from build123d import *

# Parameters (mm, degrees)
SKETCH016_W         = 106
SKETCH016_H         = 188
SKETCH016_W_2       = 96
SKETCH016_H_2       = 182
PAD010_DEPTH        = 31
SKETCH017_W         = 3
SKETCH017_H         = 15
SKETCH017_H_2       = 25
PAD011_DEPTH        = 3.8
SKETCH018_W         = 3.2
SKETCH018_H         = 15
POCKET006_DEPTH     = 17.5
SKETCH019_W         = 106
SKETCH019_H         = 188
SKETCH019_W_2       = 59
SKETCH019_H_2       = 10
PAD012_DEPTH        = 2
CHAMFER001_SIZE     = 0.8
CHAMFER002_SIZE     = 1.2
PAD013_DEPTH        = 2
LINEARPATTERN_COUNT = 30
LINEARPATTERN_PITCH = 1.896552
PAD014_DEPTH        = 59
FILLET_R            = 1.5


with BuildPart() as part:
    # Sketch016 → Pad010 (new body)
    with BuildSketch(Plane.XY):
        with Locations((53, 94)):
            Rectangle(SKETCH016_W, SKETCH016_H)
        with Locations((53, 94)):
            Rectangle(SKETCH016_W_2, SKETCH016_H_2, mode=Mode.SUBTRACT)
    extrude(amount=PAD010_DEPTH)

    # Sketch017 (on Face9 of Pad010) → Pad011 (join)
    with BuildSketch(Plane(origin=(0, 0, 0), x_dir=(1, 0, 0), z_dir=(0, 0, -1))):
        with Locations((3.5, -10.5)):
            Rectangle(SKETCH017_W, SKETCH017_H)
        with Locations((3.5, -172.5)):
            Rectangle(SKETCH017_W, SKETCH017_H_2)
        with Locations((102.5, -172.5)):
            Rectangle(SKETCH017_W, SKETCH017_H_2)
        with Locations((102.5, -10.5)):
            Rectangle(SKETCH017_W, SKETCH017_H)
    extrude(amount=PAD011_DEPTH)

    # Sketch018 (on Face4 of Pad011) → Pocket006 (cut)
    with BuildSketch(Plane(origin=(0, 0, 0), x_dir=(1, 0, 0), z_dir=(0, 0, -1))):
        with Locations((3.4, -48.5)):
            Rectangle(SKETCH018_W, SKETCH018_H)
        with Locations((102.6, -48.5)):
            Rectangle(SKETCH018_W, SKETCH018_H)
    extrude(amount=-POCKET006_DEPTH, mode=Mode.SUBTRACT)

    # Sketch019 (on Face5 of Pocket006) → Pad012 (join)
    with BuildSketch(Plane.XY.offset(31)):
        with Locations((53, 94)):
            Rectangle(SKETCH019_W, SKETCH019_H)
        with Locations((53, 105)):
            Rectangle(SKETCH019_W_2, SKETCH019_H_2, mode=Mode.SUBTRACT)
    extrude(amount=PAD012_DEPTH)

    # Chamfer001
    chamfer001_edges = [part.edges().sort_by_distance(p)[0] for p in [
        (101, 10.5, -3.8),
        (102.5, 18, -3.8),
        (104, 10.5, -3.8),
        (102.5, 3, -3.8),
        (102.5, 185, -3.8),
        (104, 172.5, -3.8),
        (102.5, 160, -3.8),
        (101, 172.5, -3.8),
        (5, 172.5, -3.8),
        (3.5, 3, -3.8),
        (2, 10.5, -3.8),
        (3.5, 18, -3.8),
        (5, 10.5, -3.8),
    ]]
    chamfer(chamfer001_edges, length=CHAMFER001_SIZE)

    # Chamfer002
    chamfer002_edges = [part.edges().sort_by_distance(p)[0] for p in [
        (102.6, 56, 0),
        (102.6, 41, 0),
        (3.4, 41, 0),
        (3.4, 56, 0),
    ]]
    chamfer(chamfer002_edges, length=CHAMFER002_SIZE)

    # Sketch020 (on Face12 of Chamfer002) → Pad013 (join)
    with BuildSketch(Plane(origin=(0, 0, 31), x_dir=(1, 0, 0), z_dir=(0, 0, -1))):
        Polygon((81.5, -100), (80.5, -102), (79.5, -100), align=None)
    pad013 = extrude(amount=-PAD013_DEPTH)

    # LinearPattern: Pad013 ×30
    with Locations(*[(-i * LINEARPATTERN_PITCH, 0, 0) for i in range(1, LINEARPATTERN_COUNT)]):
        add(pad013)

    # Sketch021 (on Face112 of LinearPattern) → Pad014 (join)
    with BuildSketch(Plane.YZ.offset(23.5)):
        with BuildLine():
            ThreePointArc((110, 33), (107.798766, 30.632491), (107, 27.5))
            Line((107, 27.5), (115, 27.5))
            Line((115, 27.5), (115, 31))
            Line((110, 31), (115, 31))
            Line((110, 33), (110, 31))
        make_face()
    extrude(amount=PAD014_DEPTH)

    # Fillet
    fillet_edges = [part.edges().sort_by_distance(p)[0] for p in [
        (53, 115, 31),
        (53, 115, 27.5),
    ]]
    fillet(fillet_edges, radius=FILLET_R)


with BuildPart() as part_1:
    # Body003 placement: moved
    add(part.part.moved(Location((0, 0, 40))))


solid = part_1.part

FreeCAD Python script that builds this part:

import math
import FreeCAD as App
import Part
import Sketcher


def edges_at(feature, points):
    """Names of the edges that pass closest to the given points."""
    edges = feature.Shape.Edges
    near = lambda p: min(range(len(edges)), key=lambda i: edges[i].distToShape(Part.Vertex(*p))[0])
    return sorted({f"Edge{near(p) + 1}" for p in points})

doc = App.newDocument("Part")
body = doc.addObject("PartDesign::Body", "Body")

sketch1 = doc.addObject("Sketcher::SketchObject", "Sketch")
body.addObject(sketch1)
sketch1.AttachmentSupport = (doc.XY_Plane, [""])
sketch1.MapMode = "FlatFace"
sketch1.addGeometry(Part.LineSegment(App.Vector(0, 188, 0), App.Vector(0, 0, 0)), False)
sketch1.addGeometry(Part.LineSegment(App.Vector(0, 0, 0), App.Vector(106, 0, 0)), False)
sketch1.addGeometry(Part.LineSegment(App.Vector(106, 0, 0), App.Vector(106, 188, 0)), False)
sketch1.addGeometry(Part.LineSegment(App.Vector(106, 188, 0), App.Vector(0, 188, 0)), False)
sketch1.addGeometry(Part.LineSegment(App.Vector(101, 3, 0), App.Vector(5, 3, 0)), False)
sketch1.addGeometry(Part.LineSegment(App.Vector(5, 3, 0), App.Vector(5, 185, 0)), False)
sketch1.addGeometry(Part.LineSegment(App.Vector(5, 185, 0), App.Vector(101, 185, 0)), False)
sketch1.addGeometry(Part.LineSegment(App.Vector(101, 185, 0), App.Vector(101, 3, 0)), False)
sketch1.addConstraint(Sketcher.Constraint("Coincident", 0, 2, 1, 1))
sketch1.addConstraint(Sketcher.Constraint("Coincident", 1, 2, 2, 1))
sketch1.addConstraint(Sketcher.Constraint("Coincident", 2, 2, 3, 1))
sketch1.addConstraint(Sketcher.Constraint("Coincident", 3, 2, 0, 1))
sketch1.addConstraint(Sketcher.Constraint("Coincident", 4, 2, 5, 1))
sketch1.addConstraint(Sketcher.Constraint("Coincident", 5, 2, 6, 1))
sketch1.addConstraint(Sketcher.Constraint("Coincident", 6, 2, 7, 1))
sketch1.addConstraint(Sketcher.Constraint("Coincident", 7, 2, 4, 1))
sketch1.addConstraint(Sketcher.Constraint("Vertical", 0))
sketch1.addConstraint(Sketcher.Constraint("Horizontal", 1))
sketch1.addConstraint(Sketcher.Constraint("Vertical", 2))
sketch1.addConstraint(Sketcher.Constraint("Horizontal", 3))
sketch1.addConstraint(Sketcher.Constraint("Horizontal", 4))
sketch1.addConstraint(Sketcher.Constraint("Vertical", 5))
sketch1.addConstraint(Sketcher.Constraint("Horizontal", 6))
sketch1.addConstraint(Sketcher.Constraint("Vertical", 7))
sketch1.addConstraint(Sketcher.Constraint("Coincident", 0, 2, -1, 1))
sketch1.addConstraint(Sketcher.Constraint("DistanceX", 1, 1, 1, 2, 106.0))
sketch1.addConstraint(Sketcher.Constraint("DistanceX", 4, 2, 4, 1, 96.0))
sketch1.addConstraint(Sketcher.Constraint("DistanceY", 0, 2, 0, 1, 188.0))
sketch1.addConstraint(Sketcher.Constraint("DistanceY", 5, 1, 5, 2, 182.0))
sketch1.addConstraint(Sketcher.Constraint("DistanceX", -1, 1, 4, 2, 5.0))
sketch1.addConstraint(Sketcher.Constraint("DistanceY", -1, 1, 4, 2, 3.0))
pad1 = doc.addObject("PartDesign::Pad", "Pad")
body.addObject(pad1)
pad1.Profile = sketch1
pad1.Length = 31

sketch2 = doc.addObject("Sketcher::SketchObject", "Sketch001")
body.addObject(sketch2)
sketch2.AttachmentSupport = (doc.XY_Plane, [""])
sketch2.MapMode = "FlatFace"
sketch2.addGeometry(Part.LineSegment(App.Vector(2, 3, 0), App.Vector(2, 18, 0)), False)
sketch2.addGeometry(Part.LineSegment(App.Vector(2, 18, 0), App.Vector(5, 18, 0)), False)
sketch2.addGeometry(Part.LineSegment(App.Vector(5, 18, 0), App.Vector(5, 3, 0)), False)
sketch2.addGeometry(Part.LineSegment(App.Vector(5, 3, 0), App.Vector(2, 3, 0)), False)
sketch2.addGeometry(Part.LineSegment(App.Vector(2, 160, 0), App.Vector(2, 185, 0)), False)
sketch2.addGeometry(Part.LineSegment(App.Vector(2, 185, 0), App.Vector(5, 185, 0)), False)
sketch2.addGeometry(Part.LineSegment(App.Vector(5, 185, 0), App.Vector(5, 160, 0)), False)
sketch2.addGeometry(Part.LineSegment(App.Vector(5, 160, 0), App.Vector(2, 160, 0)), False)
sketch2.addGeometry(Part.LineSegment(App.Vector(101, 160, 0), App.Vector(101, 185, 0)), False)
sketch2.addGeometry(Part.LineSegment(App.Vector(101, 185, 0), App.Vector(104, 185, 0)), False)
sketch2.addGeometry(Part.LineSegment(App.Vector(104, 185, 0), App.Vector(104, 160, 0)), False)
sketch2.addGeometry(Part.LineSegment(App.Vector(104, 160, 0), App.Vector(101, 160, 0)), False)
sketch2.addGeometry(Part.LineSegment(App.Vector(101, 3, 0), App.Vector(101, 18, 0)), False)
sketch2.addGeometry(Part.LineSegment(App.Vector(101, 18, 0), App.Vector(104, 18, 0)), False)
sketch2.addGeometry(Part.LineSegment(App.Vector(104, 18, 0), App.Vector(104, 3, 0)), False)
sketch2.addGeometry(Part.LineSegment(App.Vector(104, 3, 0), App.Vector(101, 3, 0)), False)
sketch2.addConstraint(Sketcher.Constraint("Coincident", 0, 2, 1, 1))
sketch2.addConstraint(Sketcher.Constraint("Coincident", 1, 2, 2, 1))
sketch2.addConstraint(Sketcher.Constraint("Coincident", 2, 2, 3, 1))
sketch2.addConstraint(Sketcher.Constraint("Coincident", 3, 2, 0, 1))
sketch2.addConstraint(Sketcher.Constraint("Coincident", 4, 2, 5, 1))
sketch2.addConstraint(Sketcher.Constraint("Coincident", 5, 2, 6, 1))
sketch2.addConstraint(Sketcher.Constraint("Coincident", 6, 2, 7, 1))
sketch2.addConstraint(Sketcher.Constraint("Coincident", 7, 2, 4, 1))
sketch2.addConstraint(Sketcher.Constraint("Coincident", 8, 2, 9, 1))
sketch2.addConstraint(Sketcher.Constraint("Coincident", 9, 2, 10, 1))
sketch2.addConstraint(Sketcher.Constraint("Coincident", 10, 2, 11, 1))
sketch2.addConstraint(Sketcher.Constraint("Coincident", 11, 2, 8, 1))
sketch2.addConstraint(Sketcher.Constraint("Coincident", 12, 2, 13, 1))
sketch2.addConstraint(Sketcher.Constraint("Coincident", 13, 2, 14, 1))
sketch2.addConstraint(Sketcher.Constraint("Coincident", 14, 2, 15, 1))
sketch2.addConstraint(Sketcher.Constraint("Coincident", 15, 2, 12, 1))
sketch2.addConstraint(Sketcher.Constraint("Vertical", 0))
sketch2.addConstraint(Sketcher.Constraint("Horizontal", 1))
sketch2.addConstraint(Sketcher.Constraint("Vertical", 2))
sketch2.addConstraint(Sketcher.Constraint("Horizontal", 3))
sketch2.addConstraint(Sketcher.Constraint("Vertical", 4))
sketch2.addConstraint(Sketcher.Constraint("Horizontal", 5))
sketch2.addConstraint(Sketcher.Constraint("Vertical", 6))
sketch2.addConstraint(Sketcher.Constraint("Horizontal", 7))
sketch2.addConstraint(Sketcher.Constraint("Vertical", 8))
sketch2.addConstraint(Sketcher.Constraint("Horizontal", 9))
sketch2.addConstraint(Sketcher.Constraint("Vertical", 10))
sketch2.addConstraint(Sketcher.Constraint("Horizontal", 11))
sketch2.addConstraint(Sketcher.Constraint("Vertical", 12))
sketch2.addConstraint(Sketcher.Constraint("Horizontal", 13))
sketch2.addConstraint(Sketcher.Constraint("Vertical", 14))
sketch2.addConstraint(Sketcher.Constraint("Horizontal", 15))
sketch2.addConstraint(Sketcher.Constraint("Horizontal", 5, 2, 8, 2))
sketch2.addConstraint(Sketcher.Constraint("Horizontal", 7, 2, 10, 2))
sketch2.addConstraint(Sketcher.Constraint("Horizontal", 1, 2, 12, 2))
sketch2.addConstraint(Sketcher.Constraint("Horizontal", 3, 2, 14, 2))
sketch2.addConstraint(Sketcher.Constraint("Vertical", 3, 2, 4, 2))
sketch2.addConstraint(Sketcher.Constraint("Vertical", 2, 2, 5, 2))
sketch2.addConstraint(Sketcher.Constraint("Vertical", 11, 2, 12, 2))
sketch2.addConstraint(Sketcher.Constraint("Vertical", 10, 2, 13, 2))
sketch2.addConstraint(Sketcher.Constraint("Equal", 7, 9))
sketch2.addConstraint(Sketcher.Constraint("DistanceX", 1, 1, 1, 2, 3.0))
sketch2.addConstraint(Sketcher.Constraint("DistanceY", 0, 1, 0, 2, 15.0))
sketch2.addConstraint(Sketcher.Constraint("DistanceY", 4, 1, 4, 2, 25.0))
sketch2.addConstraint(Sketcher.Constraint("DistanceX", -1, 1, 0, 2, 2.0))
sketch2.addConstraint(Sketcher.Constraint("DistanceY", -1, 1, 0, 2, 18.0))
sketch2.addConstraint(Sketcher.Constraint("DistanceY", -1, 1, 4, 2, 185.0))
sketch2.addConstraint(Sketcher.Constraint("DistanceX", -1, 1, 8, 2, 101.0))
pad2 = doc.addObject("PartDesign::Pad", "Pad001")
body.addObject(pad2)
pad2.Profile = sketch2
pad2.Length = 3.8
pad2.Reversed = True

sketch3 = doc.addObject("Sketcher::SketchObject", "Sketch002")
body.addObject(sketch3)
sketch3.AttachmentSupport = (doc.XY_Plane, [""])
sketch3.MapMode = "FlatFace"
sketch3.addGeometry(Part.LineSegment(App.Vector(1.8, 41, 0), App.Vector(1.8, 56, 0)), False)
sketch3.addGeometry(Part.LineSegment(App.Vector(1.8, 56, 0), App.Vector(5, 56, 0)), False)
sketch3.addGeometry(Part.LineSegment(App.Vector(5, 56, 0), App.Vector(5, 41, 0)), False)
sketch3.addGeometry(Part.LineSegment(App.Vector(5, 41, 0), App.Vector(1.8, 41, 0)), False)
sketch3.addGeometry(Part.LineSegment(App.Vector(101, 41, 0), App.Vector(101, 56, 0)), False)
sketch3.addGeometry(Part.LineSegment(App.Vector(101, 56, 0), App.Vector(104.2, 56, 0)), False)
sketch3.addGeometry(Part.LineSegment(App.Vector(104.2, 56, 0), App.Vector(104.2, 41, 0)), False)
sketch3.addGeometry(Part.LineSegment(App.Vector(104.2, 41, 0), App.Vector(101, 41, 0)), False)
sketch3.addConstraint(Sketcher.Constraint("Coincident", 0, 2, 1, 1))
sketch3.addConstraint(Sketcher.Constraint("Coincident", 1, 2, 2, 1))
sketch3.addConstraint(Sketcher.Constraint("Coincident", 2, 2, 3, 1))
sketch3.addConstraint(Sketcher.Constraint("Coincident", 3, 2, 0, 1))
sketch3.addConstraint(Sketcher.Constraint("Coincident", 4, 2, 5, 1))
sketch3.addConstraint(Sketcher.Constraint("Coincident", 5, 2, 6, 1))
sketch3.addConstraint(Sketcher.Constraint("Coincident", 6, 2, 7, 1))
sketch3.addConstraint(Sketcher.Constraint("Coincident", 7, 2, 4, 1))
sketch3.addConstraint(Sketcher.Constraint("Vertical", 0))
sketch3.addConstraint(Sketcher.Constraint("Horizontal", 1))
sketch3.addConstraint(Sketcher.Constraint("Vertical", 2))
sketch3.addConstraint(Sketcher.Constraint("Horizontal", 3))
sketch3.addConstraint(Sketcher.Constraint("Vertical", 4))
sketch3.addConstraint(Sketcher.Constraint("Horizontal", 5))
sketch3.addConstraint(Sketcher.Constraint("Vertical", 6))
sketch3.addConstraint(Sketcher.Constraint("Horizontal", 7))
sketch3.addConstraint(Sketcher.Constraint("Horizontal", 1, 2, 4, 2))
sketch3.addConstraint(Sketcher.Constraint("Horizontal", 3, 2, 6, 2))
sketch3.addConstraint(Sketcher.Constraint("Equal", 3, 5))
sketch3.addConstraint(Sketcher.Constraint("DistanceY", 0, 1, 0, 2, 15.0))
sketch3.addConstraint(Sketcher.Constraint("DistanceX", 1, 1, 1, 2, 3.2))
sketch3.addConstraint(Sketcher.Constraint("DistanceY", -1, 1, 0, 2, 56.0))
sketch3.addConstraint(Sketcher.Constraint("DistanceX", -1, 1, 1, 2, 5.0))
sketch3.addConstraint(Sketcher.Constraint("DistanceX", -1, 1, 4, 2, 101.0))
pocket1 = doc.addObject("PartDesign::Pocket", "Pocket")
body.addObject(pocket1)
pocket1.Profile = sketch3
pocket1.Length = 17.5
pocket1.Reversed = True

sketch4 = doc.addObject("Sketcher::SketchObject", "Sketch003")
body.addObject(sketch4)
sketch4.AttachmentSupport = (doc.XY_Plane, [""])
sketch4.MapMode = "FlatFace"
sketch4.AttachmentOffset = App.Placement(App.Vector(0, 0, 31), App.Rotation())
sketch4.addGeometry(Part.LineSegment(App.Vector(0, 188, 0), App.Vector(0, 0, 0)), False)
sketch4.addGeometry(Part.LineSegment(App.Vector(0, 0, 0), App.Vector(106, 0, 0)), False)
sketch4.addGeometry(Part.LineSegment(App.Vector(106, 0, 0), App.Vector(106, 188, 0)), False)
sketch4.addGeometry(Part.LineSegment(App.Vector(106, 188, 0), App.Vector(0, 188, 0)), False)
sketch4.addGeometry(Part.LineSegment(App.Vector(82, 100, 0), App.Vector(24, 100, 0)), False)
sketch4.addGeometry(Part.LineSegment(App.Vector(24, 100, 0), App.Vector(24, 110, 0)), False)
sketch4.addGeometry(Part.LineSegment(App.Vector(24, 110, 0), App.Vector(82, 110, 0)), False)
sketch4.addGeometry(Part.LineSegment(App.Vector(82, 110, 0), App.Vector(82, 100, 0)), False)
sketch4.addConstraint(Sketcher.Constraint("Coincident", 0, 2, 1, 1))
sketch4.addConstraint(Sketcher.Constraint("Coincident", 1, 2, 2, 1))
sketch4.addConstraint(Sketcher.Constraint("Coincident", 2, 2, 3, 1))
sketch4.addConstraint(Sketcher.Constraint("Coincident", 3, 2, 0, 1))
sketch4.addConstraint(Sketcher.Constraint("Coincident", 4, 2, 5, 1))
sketch4.addConstraint(Sketcher.Constraint("Coincident", 5, 2, 6, 1))
sketch4.addConstraint(Sketcher.Constraint("Coincident", 6, 2, 7, 1))
sketch4.addConstraint(Sketcher.Constraint("Coincident", 7, 2, 4, 1))
sketch4.addConstraint(Sketcher.Constraint("Vertical", 0))
sketch4.addConstraint(Sketcher.Constraint("Horizontal", 1))
sketch4.addConstraint(Sketcher.Constraint("Vertical", 2))
sketch4.addConstraint(Sketcher.Constraint("Horizontal", 3))
sketch4.addConstraint(Sketcher.Constraint("Horizontal", 4))
sketch4.addConstraint(Sketcher.Constraint("Vertical", 5))
sketch4.addConstraint(Sketcher.Constraint("Horizontal", 6))
sketch4.addConstraint(Sketcher.Constraint("Vertical", 7))
sketch4.addConstraint(Sketcher.Constraint("Coincident", 0, 2, -1, 1))
sketch4.addConstraint(Sketcher.Constraint("DistanceX", 1, 1, 1, 2, 106.0))
sketch4.addConstraint(Sketcher.Constraint("DistanceX", 4, 2, 4, 1, 59.0))
sketch4.addConstraint(Sketcher.Constraint("DistanceY", 0, 2, 0, 1, 188.0))
sketch4.addConstraint(Sketcher.Constraint("DistanceY", 5, 1, 5, 2, 10.0))
sketch4.addConstraint(Sketcher.Constraint("DistanceY", -1, 1, 4, 2, 100.0))
sketch4.addConstraint(Sketcher.Constraint("DistanceX", -1, 1, 4, 2, 23.5))
pad3 = doc.addObject("PartDesign::Pad", "Pad002")
body.addObject(pad3)
pad3.Profile = sketch4
pad3.Length = 2
doc.recompute()

chamfer = doc.addObject("PartDesign::Chamfer", "Chamfer")
body.addObject(chamfer)
chamfer.Base = (pad3, edges_at(pad3, [
    (101, 10.5, -3.8),
    (102.5, 18, -3.8),
    (104, 10.5, -3.8),
    (102.5, 3, -3.8),
    (102.5, 185, -3.8),
    (104, 172.5, -3.8),
    (102.5, 160, -3.8),
    (101, 172.5, -3.8),
    (5, 172.5, -3.8),
    (3.5, 3, -3.8),
    (2, 10.5, -3.8),
    (3.5, 18, -3.8),
    (5, 10.5, -3.8),
]))
chamfer.Size = 0.8
doc.recompute()

chamfer2 = doc.addObject("PartDesign::Chamfer", "Chamfer001")
body.addObject(chamfer2)
chamfer2.Base = (chamfer, edges_at(chamfer, [
    (102.6, 56, 0),
    (102.6, 41, 0),
    (3.4, 41, 0),
    (3.4, 56, 0),
]))
chamfer2.Size = 1.2

sketch5 = doc.addObject("Sketcher::SketchObject", "Sketch004")
body.addObject(sketch5)
sketch5.AttachmentSupport = (doc.XY_Plane, [""])
sketch5.MapMode = "FlatFace"
sketch5.AttachmentOffset = App.Placement(App.Vector(0, 0, 31), App.Rotation())
sketch5.addGeometry(Part.LineSegment(App.Vector(80.5, 102, 0), App.Vector(81.5, 100, 0)), False)
sketch5.addGeometry(Part.LineSegment(App.Vector(81.5, 100, 0), App.Vector(79.5, 100, 0)), False)
sketch5.addGeometry(Part.LineSegment(App.Vector(79.5, 100, 0), App.Vector(80.5, 102, 0)), False)
sketch5.addConstraint(Sketcher.Constraint("Coincident", 0, 2, 1, 1))
sketch5.addConstraint(Sketcher.Constraint("Coincident", 1, 2, 2, 1))
sketch5.addConstraint(Sketcher.Constraint("Coincident", 2, 2, 0, 1))
sketch5.addConstraint(Sketcher.Constraint("Horizontal", 1))
sketch5.addConstraint(Sketcher.Constraint("Equal", 0, 2))
sketch5.addConstraint(Sketcher.Constraint("DistanceX", 1, 2, 1, 1, 2.0))
sketch5.addConstraint(Sketcher.Constraint("DistanceY", -1, 1, 0, 2, 100.0))
sketch5.addConstraint(Sketcher.Constraint("DistanceY", -1, 1, 2, 2, 102.0))
sketch5.addConstraint(Sketcher.Constraint("DistanceX", -1, 1, 0, 2, 81.5))
pad4 = doc.addObject("PartDesign::Pad", "Pad003")
body.addObject(pad4)
pad4.Profile = sketch5
pad4.Length = 2
doc.recompute()

linearpattern = doc.addObject("PartDesign::LinearPattern", "LinearPattern")
body.addObject(linearpattern)
linearpattern.Originals = [pad4]
linearpattern.Direction = (doc.X_Axis, [""])
linearpattern.Mode = "offset"
linearpattern.Offset = 1.896552
linearpattern.Occurrences = 30
linearpattern.Reversed = True
body.Tip = linearpattern

sketch6 = doc.addObject("Sketcher::SketchObject", "Sketch005")
body.addObject(sketch6)
sketch6.AttachmentSupport = (doc.YZ_Plane, [""])
sketch6.MapMode = "FlatFace"
sketch6.AttachmentOffset = App.Placement(App.Vector(0, 0, 23.5), App.Rotation())
sketch6.addGeometry(Part.ArcOfCircle(Part.Circle(App.Vector(113.5, 27.5, 0), App.Vector(0, 0, 1), 6.5), math.radians(123), math.radians(180)), False)
sketch6.addGeometry(Part.LineSegment(App.Vector(107, 27.5, 0), App.Vector(115, 27.5, 0)), False)
sketch6.addGeometry(Part.LineSegment(App.Vector(115, 27.5, 0), App.Vector(115, 31, 0)), False)
sketch6.addGeometry(Part.LineSegment(App.Vector(115, 31, 0), App.Vector(110, 31, 0)), False)
sketch6.addGeometry(Part.LineSegment(App.Vector(110, 31, 0), App.Vector(110, 33, 0)), False)
sketch6.addConstraint(Sketcher.Constraint("Coincident", 0, 2, 1, 1))
sketch6.addConstraint(Sketcher.Constraint("Coincident", 1, 2, 2, 1))
sketch6.addConstraint(Sketcher.Constraint("Coincident", 2, 2, 3, 1))
sketch6.addConstraint(Sketcher.Constraint("Coincident", 3, 2, 4, 1))
sketch6.addConstraint(Sketcher.Constraint("Coincident", 4, 2, 0, 1))
sketch6.addConstraint(Sketcher.Constraint("Horizontal", 1))
sketch6.addConstraint(Sketcher.Constraint("Vertical", 2))
sketch6.addConstraint(Sketcher.Constraint("Horizontal", 3))
sketch6.addConstraint(Sketcher.Constraint("Vertical", 4))
sketch6.addConstraint(Sketcher.Constraint("DistanceX", 1, 1, 1, 2, 8.0))
sketch6.addConstraint(Sketcher.Constraint("DistanceX", 3, 2, 3, 1, 5.0))
sketch6.addConstraint(Sketcher.Constraint("DistanceY", 4, 1, 4, 2, 2.0))
sketch6.addConstraint(Sketcher.Constraint("DistanceY", 2, 1, 2, 2, 3.5))
sketch6.addConstraint(Sketcher.Constraint("DistanceX", -1, 1, 0, 2, 107.0))
sketch6.addConstraint(Sketcher.Constraint("DistanceY", -1, 1, 2, 2, 31.0))
sketch6.addConstraint(Sketcher.Constraint("DistanceY", -1, 1, 0, 3, 27.500002))
pad5 = doc.addObject("PartDesign::Pad", "Pad004")
body.addObject(pad5)
pad5.Profile = sketch6
pad5.Length = 59
doc.recompute()

fillet = doc.addObject("PartDesign::Fillet", "Fillet")
body.addObject(fillet)
fillet.Base = (pad5, edges_at(pad5, [(53, 115, 31), (53, 115, 27.5)]))
fillet.Radius = 1.5
body2 = doc.addObject("PartDesign::Body", "Body001")
doc.recompute()

body.Placement = App.Placement(App.Vector(0, 0, 40), App.Rotation(App.Vector(0, 0, 1), 0))
boolean = doc.addObject("PartDesign::Boolean", "Boolean")
body2.addObject(boolean)
boolean.Type = "Fuse"
boolean.addObjects([body])

doc.recompute()
